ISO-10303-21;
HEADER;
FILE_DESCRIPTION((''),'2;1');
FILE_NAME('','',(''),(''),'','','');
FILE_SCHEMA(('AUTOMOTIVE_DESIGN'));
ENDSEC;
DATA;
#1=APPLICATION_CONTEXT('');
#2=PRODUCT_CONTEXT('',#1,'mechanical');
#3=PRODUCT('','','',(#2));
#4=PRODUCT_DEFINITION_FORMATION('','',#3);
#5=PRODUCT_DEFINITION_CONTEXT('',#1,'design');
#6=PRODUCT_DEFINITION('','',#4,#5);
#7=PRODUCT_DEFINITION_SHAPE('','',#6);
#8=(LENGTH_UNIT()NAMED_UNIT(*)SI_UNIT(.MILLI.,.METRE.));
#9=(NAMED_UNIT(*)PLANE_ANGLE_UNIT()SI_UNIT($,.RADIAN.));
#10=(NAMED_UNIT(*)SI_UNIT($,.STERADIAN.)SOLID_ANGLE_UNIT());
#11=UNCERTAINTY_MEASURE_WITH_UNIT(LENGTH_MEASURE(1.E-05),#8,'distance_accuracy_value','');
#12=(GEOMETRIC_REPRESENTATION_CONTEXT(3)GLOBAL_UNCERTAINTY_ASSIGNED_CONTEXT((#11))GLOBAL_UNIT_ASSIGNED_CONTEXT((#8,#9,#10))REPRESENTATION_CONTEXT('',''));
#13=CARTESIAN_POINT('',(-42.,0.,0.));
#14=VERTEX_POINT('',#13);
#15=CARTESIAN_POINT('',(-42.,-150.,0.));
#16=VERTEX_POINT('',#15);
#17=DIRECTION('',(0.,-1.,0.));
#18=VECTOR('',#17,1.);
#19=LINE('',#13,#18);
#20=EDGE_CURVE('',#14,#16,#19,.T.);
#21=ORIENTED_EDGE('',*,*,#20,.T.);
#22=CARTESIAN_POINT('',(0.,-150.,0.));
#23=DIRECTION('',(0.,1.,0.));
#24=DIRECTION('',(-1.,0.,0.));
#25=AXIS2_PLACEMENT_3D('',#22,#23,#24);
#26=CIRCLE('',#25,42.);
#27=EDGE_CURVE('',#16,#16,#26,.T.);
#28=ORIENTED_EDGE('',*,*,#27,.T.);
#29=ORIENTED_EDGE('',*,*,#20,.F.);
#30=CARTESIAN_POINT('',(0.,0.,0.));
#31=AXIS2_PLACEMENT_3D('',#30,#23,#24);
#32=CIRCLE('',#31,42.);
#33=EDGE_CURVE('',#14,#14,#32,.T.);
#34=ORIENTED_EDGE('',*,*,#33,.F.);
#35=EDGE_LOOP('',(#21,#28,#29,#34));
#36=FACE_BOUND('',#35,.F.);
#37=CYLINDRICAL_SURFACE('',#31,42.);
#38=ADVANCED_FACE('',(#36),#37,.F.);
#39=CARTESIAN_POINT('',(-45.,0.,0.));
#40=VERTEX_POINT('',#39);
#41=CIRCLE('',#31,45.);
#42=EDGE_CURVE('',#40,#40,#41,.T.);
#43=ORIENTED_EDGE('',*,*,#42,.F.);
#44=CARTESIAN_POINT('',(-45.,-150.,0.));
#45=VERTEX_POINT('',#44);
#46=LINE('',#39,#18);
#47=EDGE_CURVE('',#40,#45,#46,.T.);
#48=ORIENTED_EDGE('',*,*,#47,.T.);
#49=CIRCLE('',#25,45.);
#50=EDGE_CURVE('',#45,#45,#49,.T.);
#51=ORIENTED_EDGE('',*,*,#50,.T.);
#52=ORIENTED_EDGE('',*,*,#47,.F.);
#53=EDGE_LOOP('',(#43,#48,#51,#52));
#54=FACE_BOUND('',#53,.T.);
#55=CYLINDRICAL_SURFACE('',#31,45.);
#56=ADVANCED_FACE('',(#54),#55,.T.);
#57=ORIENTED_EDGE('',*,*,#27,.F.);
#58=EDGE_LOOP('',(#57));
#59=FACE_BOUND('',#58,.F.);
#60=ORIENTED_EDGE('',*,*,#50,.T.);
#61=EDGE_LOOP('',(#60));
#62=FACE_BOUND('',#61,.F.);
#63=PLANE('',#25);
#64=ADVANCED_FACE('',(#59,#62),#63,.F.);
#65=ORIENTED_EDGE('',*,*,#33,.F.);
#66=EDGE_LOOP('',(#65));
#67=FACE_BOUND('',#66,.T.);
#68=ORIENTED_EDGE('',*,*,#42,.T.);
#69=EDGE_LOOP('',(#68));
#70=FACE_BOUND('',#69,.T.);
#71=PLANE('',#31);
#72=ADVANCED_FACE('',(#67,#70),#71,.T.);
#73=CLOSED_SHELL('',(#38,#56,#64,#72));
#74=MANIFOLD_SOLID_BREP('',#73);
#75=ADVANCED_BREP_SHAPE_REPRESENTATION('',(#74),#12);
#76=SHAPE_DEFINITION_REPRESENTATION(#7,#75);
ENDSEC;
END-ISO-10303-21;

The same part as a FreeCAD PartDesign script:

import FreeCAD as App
import Part
import Sketcher
from FreeCAD import Vector

doc = App.newDocument("Part")
body = doc.addObject("PartDesign::Body", "Body")

# Sketch on XZ plane
sketch1 = doc.addObject("Sketcher::SketchObject", "Sketch")
body.addObject(sketch1)
sketch1.AttachmentSupport = (doc.XZ_Plane, [""])
sketch1.MapMode = "FlatFace"
sketch1.addGeometry([
    Part.Circle(Vector(0, 0, 0), Vector(0, 0, 1), 45),
    Part.Circle(Vector(0, 0, 0), Vector(0, 0, 1), 42),
], False)
sketch1.addConstraint([
    Sketcher.Constraint("Coincident", 0, 3, -1, 1),
    Sketcher.Constraint("Coincident", 1, 3, -1, 1),
    Sketcher.Constraint("Diameter", 0, 90.0),
    Sketcher.Constraint("Diameter", 1, 84.0),
])
pad1 = doc.addObject("PartDesign::Pad", "Pad")
body.addObject(pad1)
pad1.Profile = sketch1
pad1.Length = 150

doc.recompute()
